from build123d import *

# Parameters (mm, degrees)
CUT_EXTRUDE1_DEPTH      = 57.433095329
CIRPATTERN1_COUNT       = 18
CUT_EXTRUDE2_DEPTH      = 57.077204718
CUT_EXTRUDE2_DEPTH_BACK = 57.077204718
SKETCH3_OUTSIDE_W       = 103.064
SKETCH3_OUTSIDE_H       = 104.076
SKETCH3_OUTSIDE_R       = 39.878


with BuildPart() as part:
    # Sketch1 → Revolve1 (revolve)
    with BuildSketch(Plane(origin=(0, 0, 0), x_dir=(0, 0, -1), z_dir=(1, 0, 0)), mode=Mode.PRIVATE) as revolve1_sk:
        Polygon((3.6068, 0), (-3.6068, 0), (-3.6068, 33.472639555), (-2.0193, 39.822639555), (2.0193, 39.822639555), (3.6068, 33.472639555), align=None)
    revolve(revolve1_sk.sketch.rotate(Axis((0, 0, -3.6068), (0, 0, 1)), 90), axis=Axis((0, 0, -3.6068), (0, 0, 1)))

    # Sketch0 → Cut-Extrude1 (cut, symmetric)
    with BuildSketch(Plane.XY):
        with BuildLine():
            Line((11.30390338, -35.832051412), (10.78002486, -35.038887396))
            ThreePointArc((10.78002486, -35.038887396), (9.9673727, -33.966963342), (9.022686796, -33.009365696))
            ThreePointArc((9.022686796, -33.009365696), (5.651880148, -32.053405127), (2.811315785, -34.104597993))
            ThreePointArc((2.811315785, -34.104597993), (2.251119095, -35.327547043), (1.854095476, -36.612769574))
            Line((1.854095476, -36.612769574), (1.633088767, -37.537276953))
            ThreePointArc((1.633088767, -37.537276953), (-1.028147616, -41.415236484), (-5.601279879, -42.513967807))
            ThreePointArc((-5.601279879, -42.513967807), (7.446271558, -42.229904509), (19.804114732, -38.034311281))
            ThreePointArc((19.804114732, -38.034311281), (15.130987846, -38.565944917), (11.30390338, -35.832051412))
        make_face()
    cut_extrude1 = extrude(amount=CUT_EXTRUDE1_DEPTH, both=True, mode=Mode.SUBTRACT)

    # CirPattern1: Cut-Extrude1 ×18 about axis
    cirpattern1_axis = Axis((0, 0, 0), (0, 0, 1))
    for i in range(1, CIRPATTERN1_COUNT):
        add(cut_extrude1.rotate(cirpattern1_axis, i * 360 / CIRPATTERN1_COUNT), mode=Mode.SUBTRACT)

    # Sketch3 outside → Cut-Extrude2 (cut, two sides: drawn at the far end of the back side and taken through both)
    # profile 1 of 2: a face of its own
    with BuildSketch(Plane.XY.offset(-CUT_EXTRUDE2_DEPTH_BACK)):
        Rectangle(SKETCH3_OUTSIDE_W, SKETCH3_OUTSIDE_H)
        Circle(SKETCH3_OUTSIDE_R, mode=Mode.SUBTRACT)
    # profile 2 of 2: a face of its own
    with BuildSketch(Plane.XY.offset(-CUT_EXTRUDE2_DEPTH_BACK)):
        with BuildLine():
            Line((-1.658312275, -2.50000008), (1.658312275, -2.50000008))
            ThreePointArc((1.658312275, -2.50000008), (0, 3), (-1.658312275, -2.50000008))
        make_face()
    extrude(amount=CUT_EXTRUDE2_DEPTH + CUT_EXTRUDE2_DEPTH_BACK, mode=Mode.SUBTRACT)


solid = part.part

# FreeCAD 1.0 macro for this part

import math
import FreeCAD as App
import Part
import Sketcher
from FreeCAD import Vector
Q = App.Units.Quantity


def add_polygon(sketch, points):
    """Adds a closed chain of lines whose ends are joined by coincident constraints."""
    first, n = sketch.GeometryCount, len(points)
    for a, b in zip(points, points[1:] + points[:1]):
        sketch.addGeometry(Part.LineSegment(App.Vector(*a, 0), App.Vector(*b, 0)), False)
    for i in range(n):
        sketch.addConstraint(Sketcher.Constraint("Coincident", first + i, 2, first + (i + 1) % n, 1))

doc = App.newDocument("Part")
body = doc.addObject("PartDesign::Body", "Body")

# Sketch on YZ plane
sketch1 = body.newObject("Sketcher::SketchObject", "Sketch")
sketch1.AttachmentSupport = (doc.getObject("YZ_Plane"), [""])
sketch1.MapMode = "FlatFace"
add_polygon(sketch1, [(0, 3.6), (0, -3.6), (33.5, -3.6), (39.8, -2), (39.8, 2), (33.5, 3.6)])  # lines 0-5
sketch1.addConstraint([
    Sketcher.Constraint("Vertical", 0),
    Sketcher.Constraint("Horizontal", 1),
    Sketcher.Constraint("Vertical", 3),
    Sketcher.Constraint("Horizontal", 5),
    Sketcher.Constraint("Symmetric", 0, 2, 5, 2, -1, 1),
    Sketcher.Constraint("Vertical", 1, 2, 4, 2),
    Sketcher.Constraint("Equal", 2, 4),
    Sketcher.Constraint("DistanceY", 0, 2, 0, 1, Q("0.284 in")),
    Sketcher.Constraint("DistanceY", 3, 1, 3, 2, Q("0.159 in")),
    Sketcher.Constraint("DistanceX", 1, 2, 2, 2, Q("0.25 in")),
    Sketcher.Constraint("DistanceX", 1, 1, 1, 2, 33.47264),
])
revolution = body.newObject("PartDesign::Revolution", "Revolution")
revolution.Profile = sketch1
revolution.ReferenceAxis = (sketch1, ["V_Axis"])
revolution.Angle = 360

# Sketch on XY plane
sketch2 = body.newObject("Sketcher::SketchObject", "Sketch001")
sketch2.AttachmentSupport = (doc.getObject("XY_Plane"), [""])
sketch2.MapMode = "FlatFace"
sketch2.addGeometry([
    Part.LineSegment(Vector(11.3, -35.8, 0), Vector(10.8, -35, 0)),  # 0
    Part.ArcOfCircle(Part.Circle(Vector(2.1, -40.7, 0), Vector(0, 0, 1), 10.4), math.radians(33.44), math.radians(48.33)),  # 1
    Part.ArcOfCircle(Part.Circle(Vector(6.3, -36, 0), Vector(0, 0, 1), 4), math.radians(48), math.radians(152)),  # 2
    Part.ArcOfCircle(Part.Circle(Vector(11.9, -39, 0), Vector(0, 0, 1), 10.4), math.radians(151.67), math.radians(166.56)),  # 3
    Part.LineSegment(Vector(1.9, -36.6, 0), Vector(1.6, -37.5, 0)),  # 4
    Part.ArcOfCircle(Part.Circle(Vector(-4.7, -36, 0), Vector(0, 0, 1), 6.6), math.radians(-98), math.radians(-13)),  # 5
    Part.ArcOfCircle(Part.Circle(Vector(0, 0, 0), Vector(0, 0, 1), 42.9), math.radians(-98), math.radians(-62)),  # 6
    Part.ArcOfCircle(Part.Circle(Vector(16.8, -32.2, 0), Vector(0, 0, 1), 6.6), math.radians(-147), math.radians(-62)),  # 7
], False)
sketch2.addConstraint([
    Sketcher.Constraint("Tangent", 0, 2, 1, 1),
    Sketcher.Constraint("Tangent", 1, 2, 2, 1),
    Sketcher.Constraint("Tangent", 2, 2, 3, 1),
    Sketcher.Constraint("Tangent", 3, 2, 4, 1),
    Sketcher.Constraint("Tangent", 4, 2, 5, 2),
    Sketcher.Constraint("Tangent", 5, 1, 6, 1),
    Sketcher.Constraint("Tangent", 6, 2, 7, 2),
    Sketcher.Constraint("Tangent", 7, 1, 0, 1),
    Sketcher.Constraint("Coincident", 6, 3, -1, 1),
    Sketcher.Constraint("Equal", 1, 3),
    Sketcher.Constraint("Equal", 5, 7),
    Sketcher.Constraint("Horizontal", 2, 3, 5, 3),
    Sketcher.Constraint("Equal", 0, 4),
    Sketcher.Constraint("DistanceX", -1, 1, 2, 3, Q("0.25 in")),
    Sketcher.Constraint("Radius", 2, 4.020312),
    Sketcher.Constraint("Radius", 3, 10.360152),
    Sketcher.Constraint("Radius", 6, 42.881369),
    Sketcher.Constraint("DistanceX", 5, 3, -1, 1, Q("0.1868 in")),
    Sketcher.Constraint("Radius", 5, 6.557512),
    Sketcher.Constraint("DistanceX", -1, 1, 1, 3, 2.135301),
    Sketcher.Constraint("DistanceX", 0, 2, 7, 3, 5.995602),
])
pocket1 = body.newObject("PartDesign::Pocket", "Pocket")
pocket1.Profile = sketch2
pocket1.Length = 114.866191
pocket1.Midplane = True
doc.recompute()

polarpattern = body.newObject("PartDesign::PolarPattern", "PolarPattern")
polarpattern.Originals = [pocket1]
polarpattern.Axis = (doc.getObject("Z_Axis"), [""])
polarpattern.Angle = 360
polarpattern.Occurrences = 18
body.Tip = polarpattern

# Sketch on XY plane
sketch3 = body.newObject("Sketcher::SketchObject", "Sketch002")
sketch3.AttachmentSupport = (doc.getObject("XY_Plane"), [""])
sketch3.MapMode = "FlatFace"
add_polygon(sketch3, [(-51.5, 52), (-51.5, -52), (51.5, -52), (51.5, 52)])  # lines 0-3
sketch3.addGeometry(Part.Circle(Vector(0, 0, 0), Vector(0, 0, 1), 39.9), False)  # 4
sketch3.addGeometry(Part.LineSegment(Vector(-1.7, -2.5, 0), Vector(1.7, -2.5, 0)), False)  # 5
sketch3.addGeometry(Part.ArcOfCircle(Part.Circle(Vector(0, 0, 0), Vector(0, 0, 1), 3), math.radians(-56), math.radians(236)), False)  # 6
sketch3.addConstraint([
    Sketcher.Constraint("Coincident", 5, 1, 6, 2),
    Sketcher.Constraint("Coincident", 6, 1, 5, 2),
    Sketcher.Constraint("Vertical", 0),
    Sketcher.Constraint("Horizontal", 1),
    Sketcher.Constraint("Vertical", 2),
    Sketcher.Constraint("Horizontal", 3),
    Sketcher.Constraint("Horizontal", 5),
    Sketcher.Constraint("Coincident", 4, 3, -1, 1),
    Sketcher.Constraint("Coincident", 6, 3, -1, 1),
    Sketcher.Constraint("Symmetric", 0, 2, 2, 2, -1, 1),
    Sketcher.Constraint("Diameter", 4, Q("3.14 in")),
    Sketcher.Constraint("Radius", 6, 3.0),
    Sketcher.Constraint("DistanceX", 1, 1, 1, 2, 103.064),
    Sketcher.Constraint("DistanceY", 0, 2, 0, 1, 104.076),
    Sketcher.Constraint("DistanceY", 5, 1, -1, 1, 2.5),
])
pocket2 = body.newObject("PartDesign::Pocket", "Pocket001")
pocket2.Profile = sketch3
pocket2.Type = "ThroughAll"
pocket2.Midplane = True

doc.recompute()
